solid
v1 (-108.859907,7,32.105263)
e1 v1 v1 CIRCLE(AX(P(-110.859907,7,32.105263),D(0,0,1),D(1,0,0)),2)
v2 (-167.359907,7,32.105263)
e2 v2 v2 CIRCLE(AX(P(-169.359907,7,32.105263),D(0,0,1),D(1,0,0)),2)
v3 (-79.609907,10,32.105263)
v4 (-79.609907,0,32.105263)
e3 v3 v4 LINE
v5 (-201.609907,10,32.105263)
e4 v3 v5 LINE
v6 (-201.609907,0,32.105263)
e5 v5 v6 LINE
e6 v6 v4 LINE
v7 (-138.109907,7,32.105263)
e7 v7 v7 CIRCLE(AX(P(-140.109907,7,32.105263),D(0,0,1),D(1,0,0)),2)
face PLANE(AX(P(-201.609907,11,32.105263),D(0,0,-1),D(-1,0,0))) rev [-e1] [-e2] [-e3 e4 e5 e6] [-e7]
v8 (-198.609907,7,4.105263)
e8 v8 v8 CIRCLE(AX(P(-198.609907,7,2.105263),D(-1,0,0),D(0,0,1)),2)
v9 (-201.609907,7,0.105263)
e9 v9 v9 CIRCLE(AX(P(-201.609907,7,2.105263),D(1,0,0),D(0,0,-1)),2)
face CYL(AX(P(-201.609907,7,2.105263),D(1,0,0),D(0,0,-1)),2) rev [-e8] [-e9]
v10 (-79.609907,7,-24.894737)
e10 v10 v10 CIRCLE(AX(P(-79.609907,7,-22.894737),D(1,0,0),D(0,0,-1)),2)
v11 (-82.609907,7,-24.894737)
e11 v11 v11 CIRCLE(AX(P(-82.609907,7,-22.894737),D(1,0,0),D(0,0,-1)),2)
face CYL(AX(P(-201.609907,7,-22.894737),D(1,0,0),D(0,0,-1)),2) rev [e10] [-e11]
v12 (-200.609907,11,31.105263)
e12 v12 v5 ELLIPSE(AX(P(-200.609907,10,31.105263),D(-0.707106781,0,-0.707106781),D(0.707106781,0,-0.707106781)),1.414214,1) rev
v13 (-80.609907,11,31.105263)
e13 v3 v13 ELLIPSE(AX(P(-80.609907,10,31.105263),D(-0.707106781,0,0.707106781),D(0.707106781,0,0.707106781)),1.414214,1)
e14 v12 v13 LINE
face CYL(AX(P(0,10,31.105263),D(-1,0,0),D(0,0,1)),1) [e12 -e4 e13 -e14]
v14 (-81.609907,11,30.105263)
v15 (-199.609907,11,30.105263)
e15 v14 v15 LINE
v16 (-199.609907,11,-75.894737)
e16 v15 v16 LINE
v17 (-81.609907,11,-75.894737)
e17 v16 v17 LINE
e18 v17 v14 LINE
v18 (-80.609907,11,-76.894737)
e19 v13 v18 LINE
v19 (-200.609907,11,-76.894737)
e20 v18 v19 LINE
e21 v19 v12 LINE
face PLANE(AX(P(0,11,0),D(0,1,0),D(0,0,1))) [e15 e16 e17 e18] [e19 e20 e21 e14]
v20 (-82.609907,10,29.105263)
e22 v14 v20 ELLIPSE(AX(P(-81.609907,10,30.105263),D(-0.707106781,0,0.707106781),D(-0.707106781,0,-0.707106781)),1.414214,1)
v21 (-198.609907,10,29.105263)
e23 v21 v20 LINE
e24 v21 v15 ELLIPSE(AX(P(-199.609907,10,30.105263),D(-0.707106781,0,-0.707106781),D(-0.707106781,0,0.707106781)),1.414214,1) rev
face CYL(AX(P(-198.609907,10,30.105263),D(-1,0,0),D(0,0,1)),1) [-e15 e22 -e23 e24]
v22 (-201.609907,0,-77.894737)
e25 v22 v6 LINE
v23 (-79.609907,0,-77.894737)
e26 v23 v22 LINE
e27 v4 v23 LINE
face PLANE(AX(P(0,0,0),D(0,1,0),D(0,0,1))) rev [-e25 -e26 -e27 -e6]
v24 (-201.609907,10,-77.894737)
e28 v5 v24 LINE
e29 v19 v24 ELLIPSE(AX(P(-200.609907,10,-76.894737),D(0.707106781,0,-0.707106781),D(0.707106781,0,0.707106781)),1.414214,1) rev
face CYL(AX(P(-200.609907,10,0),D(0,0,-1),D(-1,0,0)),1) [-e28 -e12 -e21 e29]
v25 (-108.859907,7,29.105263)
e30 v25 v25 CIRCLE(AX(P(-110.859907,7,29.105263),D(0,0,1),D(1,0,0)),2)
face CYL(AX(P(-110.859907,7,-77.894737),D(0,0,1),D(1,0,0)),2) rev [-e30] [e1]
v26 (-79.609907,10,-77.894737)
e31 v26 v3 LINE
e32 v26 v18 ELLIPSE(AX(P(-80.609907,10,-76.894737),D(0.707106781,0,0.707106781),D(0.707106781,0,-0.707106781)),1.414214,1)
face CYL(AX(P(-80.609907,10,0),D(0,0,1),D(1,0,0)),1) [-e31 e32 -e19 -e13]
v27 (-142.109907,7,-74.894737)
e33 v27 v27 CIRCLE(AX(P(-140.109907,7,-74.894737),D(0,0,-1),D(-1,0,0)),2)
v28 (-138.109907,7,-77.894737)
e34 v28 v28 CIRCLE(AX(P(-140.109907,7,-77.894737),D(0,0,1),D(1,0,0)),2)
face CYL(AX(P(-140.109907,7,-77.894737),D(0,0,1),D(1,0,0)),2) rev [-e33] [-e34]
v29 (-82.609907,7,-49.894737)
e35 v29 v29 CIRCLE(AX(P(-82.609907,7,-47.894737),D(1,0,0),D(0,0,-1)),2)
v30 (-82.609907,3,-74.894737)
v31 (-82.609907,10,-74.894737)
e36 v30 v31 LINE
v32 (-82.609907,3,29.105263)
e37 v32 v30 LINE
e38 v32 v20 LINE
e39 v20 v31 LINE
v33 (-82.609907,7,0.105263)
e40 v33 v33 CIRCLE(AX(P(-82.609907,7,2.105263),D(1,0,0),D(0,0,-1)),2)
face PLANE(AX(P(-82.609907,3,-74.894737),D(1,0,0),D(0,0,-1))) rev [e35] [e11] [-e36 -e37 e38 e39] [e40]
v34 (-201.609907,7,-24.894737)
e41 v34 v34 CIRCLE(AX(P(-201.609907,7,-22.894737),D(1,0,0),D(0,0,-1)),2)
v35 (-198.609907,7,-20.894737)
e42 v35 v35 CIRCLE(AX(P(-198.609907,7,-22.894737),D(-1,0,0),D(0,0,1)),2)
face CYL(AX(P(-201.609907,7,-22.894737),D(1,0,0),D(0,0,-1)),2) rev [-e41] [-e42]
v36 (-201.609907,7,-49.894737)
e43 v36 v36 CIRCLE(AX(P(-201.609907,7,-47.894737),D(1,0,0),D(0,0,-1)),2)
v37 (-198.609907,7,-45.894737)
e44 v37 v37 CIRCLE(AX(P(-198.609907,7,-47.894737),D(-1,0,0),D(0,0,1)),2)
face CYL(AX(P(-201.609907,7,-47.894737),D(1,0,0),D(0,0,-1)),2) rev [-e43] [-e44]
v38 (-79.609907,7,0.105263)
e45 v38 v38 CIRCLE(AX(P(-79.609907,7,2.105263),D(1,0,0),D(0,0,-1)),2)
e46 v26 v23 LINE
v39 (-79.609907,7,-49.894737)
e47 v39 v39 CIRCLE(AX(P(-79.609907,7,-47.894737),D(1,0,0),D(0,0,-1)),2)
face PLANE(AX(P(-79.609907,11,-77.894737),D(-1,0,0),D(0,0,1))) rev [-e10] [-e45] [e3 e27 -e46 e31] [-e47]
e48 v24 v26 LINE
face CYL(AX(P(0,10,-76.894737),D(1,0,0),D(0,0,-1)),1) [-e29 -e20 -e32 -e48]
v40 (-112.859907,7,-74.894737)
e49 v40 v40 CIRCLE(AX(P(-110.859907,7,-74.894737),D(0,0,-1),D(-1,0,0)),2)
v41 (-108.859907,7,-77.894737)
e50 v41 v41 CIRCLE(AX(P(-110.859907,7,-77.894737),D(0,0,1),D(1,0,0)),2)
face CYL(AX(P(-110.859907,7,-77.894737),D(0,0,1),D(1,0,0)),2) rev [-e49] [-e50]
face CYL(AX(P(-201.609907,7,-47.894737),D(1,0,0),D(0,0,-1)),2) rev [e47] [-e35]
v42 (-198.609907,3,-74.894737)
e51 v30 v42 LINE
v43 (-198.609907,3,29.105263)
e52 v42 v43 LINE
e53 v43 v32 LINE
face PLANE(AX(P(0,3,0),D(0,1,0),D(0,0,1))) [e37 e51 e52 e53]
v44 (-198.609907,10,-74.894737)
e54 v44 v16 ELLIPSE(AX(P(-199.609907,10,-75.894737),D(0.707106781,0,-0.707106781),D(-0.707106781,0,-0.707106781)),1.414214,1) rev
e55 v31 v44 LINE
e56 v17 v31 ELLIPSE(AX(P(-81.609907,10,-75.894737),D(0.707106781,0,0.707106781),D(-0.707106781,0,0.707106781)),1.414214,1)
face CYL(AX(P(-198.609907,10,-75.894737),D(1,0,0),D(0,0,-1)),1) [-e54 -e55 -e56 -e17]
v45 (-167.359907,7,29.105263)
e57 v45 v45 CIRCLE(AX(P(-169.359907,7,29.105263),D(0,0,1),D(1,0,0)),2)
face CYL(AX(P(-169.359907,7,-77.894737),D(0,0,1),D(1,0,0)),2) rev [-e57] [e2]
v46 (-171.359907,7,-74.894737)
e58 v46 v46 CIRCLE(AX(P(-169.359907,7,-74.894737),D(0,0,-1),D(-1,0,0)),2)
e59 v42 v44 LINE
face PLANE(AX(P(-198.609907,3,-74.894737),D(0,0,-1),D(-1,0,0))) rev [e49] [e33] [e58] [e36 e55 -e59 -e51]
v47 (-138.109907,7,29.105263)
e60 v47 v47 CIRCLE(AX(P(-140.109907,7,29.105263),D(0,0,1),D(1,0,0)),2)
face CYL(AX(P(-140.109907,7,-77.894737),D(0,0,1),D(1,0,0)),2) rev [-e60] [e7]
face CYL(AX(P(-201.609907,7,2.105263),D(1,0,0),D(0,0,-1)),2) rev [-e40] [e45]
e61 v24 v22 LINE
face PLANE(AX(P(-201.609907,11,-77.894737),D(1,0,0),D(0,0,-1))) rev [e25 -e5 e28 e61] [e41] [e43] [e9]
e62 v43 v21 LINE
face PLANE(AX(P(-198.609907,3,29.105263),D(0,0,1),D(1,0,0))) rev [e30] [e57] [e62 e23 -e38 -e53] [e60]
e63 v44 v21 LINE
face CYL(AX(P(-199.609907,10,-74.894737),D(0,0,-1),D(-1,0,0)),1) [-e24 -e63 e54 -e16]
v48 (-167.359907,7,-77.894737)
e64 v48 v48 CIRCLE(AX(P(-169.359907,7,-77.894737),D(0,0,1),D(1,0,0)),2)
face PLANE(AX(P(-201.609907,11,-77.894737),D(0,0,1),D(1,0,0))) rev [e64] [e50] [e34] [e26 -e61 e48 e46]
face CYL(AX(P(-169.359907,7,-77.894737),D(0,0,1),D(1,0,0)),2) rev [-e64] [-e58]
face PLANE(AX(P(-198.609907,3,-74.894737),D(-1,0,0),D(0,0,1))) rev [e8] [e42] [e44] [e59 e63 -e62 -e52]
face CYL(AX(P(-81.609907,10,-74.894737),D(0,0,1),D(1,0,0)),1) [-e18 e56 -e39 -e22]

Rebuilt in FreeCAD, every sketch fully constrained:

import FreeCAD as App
import Part
import Sketcher
from FreeCAD import Vector
Q = App.Units.Quantity


def edges_at(feature, points):
    """Names of the edges that pass closest to the given points."""
    edges = feature.Shape.Edges
    near = lambda p: min(range(len(edges)), key=lambda i: edges[i].distToShape(Part.Vertex(*p))[0])
    return sorted({f"Edge{near(p) + 1}" for p in points})

doc = App.newDocument("Part")
params = doc.addObject("Spreadsheet::Sheet", "Params")
for row, (alias, value) in enumerate([
    ("sketch1_width", "122 mm"),
    ("sketch1_height", "110 mm"),
    ("pad1_length", "11 mm"),
    ("sketch2_width", "116 mm"),
    ("sketch2_height", "104 mm"),
    ("pocket1_length", "8 mm"),
    ("sketch3_diameter", "4 mm"),
    ("sketch4_diameter", "4 mm"),
    ("fillet_radius", "1 mm"),
], start=1):
    params.set(f"A{row}", alias)
    params.set(f"B{row}", "=" + value)
    params.setAlias(f"B{row}", alias)

body = doc.addObject("PartDesign::Body", "Body")

sketch1 = doc.addObject("Sketcher::SketchObject", "Sketch")
body.addObject(sketch1)
sketch1.AttachmentSupport = (doc.XZ_Plane, [""])
sketch1.MapMode = "FlatFace"
sketch1.addGeometry(Part.LineSegment(Vector(-202, -78, 0), Vector(-202, 32, 0)), False)
sketch1.addGeometry(Part.LineSegment(Vector(-202, 32, 0), Vector(-80, 32, 0)), False)
sketch1.addGeometry(Part.LineSegment(Vector(-80, 32, 0), Vector(-80, -78, 0)), False)
sketch1.addGeometry(Part.LineSegment(Vector(-80, -78, 0), Vector(-202, -78, 0)), False)
sketch1.addConstraint(Sketcher.Constraint("Coincident", 0, 2, 1, 1))
sketch1.addConstraint(Sketcher.Constraint("Coincident", 1, 2, 2, 1))
sketch1.addConstraint(Sketcher.Constraint("Coincident", 2, 2, 3, 1))
sketch1.addConstraint(Sketcher.Constraint("Coincident", 3, 2, 0, 1))
sketch1.addConstraint(Sketcher.Constraint("Vertical", 0))
sketch1.addConstraint(Sketcher.Constraint("Horizontal", 1))
sketch1.addConstraint(Sketcher.Constraint("Vertical", 2))
sketch1.addConstraint(Sketcher.Constraint("Horizontal", 3))
sketch1.addConstraint(Sketcher.Constraint("DistanceX", 1, 1, 1, 2, Q("122 mm")))
sketch1.addConstraint(Sketcher.Constraint("DistanceY", 0, 1, 0, 2, Q("110 mm")))
sketch1.addConstraint(Sketcher.Constraint("DistanceX", 0, 2, -1, 1, Q("201.609907 mm")))
sketch1.addConstraint(Sketcher.Constraint("DistanceY", -1, 1, 0, 2, Q("32.105263 mm")))
sketch1.setExpression("Constraints[8]", "Params.sketch1_width")
sketch1.setExpression("Constraints[9]", "Params.sketch1_height")
pad1 = doc.addObject("PartDesign::Pad", "Pad")
body.addObject(pad1)
pad1.Profile = sketch1
pad1.setExpression("Length", "Params.pad1_length")
pad1.Reversed = True

sketch2 = doc.addObject("Sketcher::SketchObject", "Sketch001")
body.addObject(sketch2)
sketch2.AttachmentSupport = (doc.XZ_Plane, [""])
sketch2.MapMode = "FlatFace"
sketch2.AttachmentOffset = App.Placement(Vector(0, 0, -11), App.Rotation())
sketch2.addGeometry(Part.LineSegment(Vector(-199, -75, 0), Vector(-199, 29, 0)), False)
sketch2.addGeometry(Part.LineSegment(Vector(-199, 29, 0), Vector(-83, 29, 0)), False)
sketch2.addGeometry(Part.LineSegment(Vector(-83, 29, 0), Vector(-83, -75, 0)), False)
sketch2.addGeometry(Part.LineSegment(Vector(-83, -75, 0), Vector(-199, -75, 0)), False)
sketch2.addConstraint(Sketcher.Constraint("Coincident", 0, 2, 1, 1))
sketch2.addConstraint(Sketcher.Constraint("Coincident", 1, 2, 2, 1))
sketch2.addConstraint(Sketcher.Constraint("Coincident", 2, 2, 3, 1))
sketch2.addConstraint(Sketcher.Constraint("Coincident", 3, 2, 0, 1))
sketch2.addConstraint(Sketcher.Constraint("Vertical", 0))
sketch2.addConstraint(Sketcher.Constraint("Horizontal", 1))
sketch2.addConstraint(Sketcher.Constraint("Vertical", 2))
sketch2.addConstraint(Sketcher.Constraint("Horizontal", 3))
sketch2.addConstraint(Sketcher.Constraint("DistanceX", 1, 1, 1, 2, Q("116 mm")))
sketch2.addConstraint(Sketcher.Constraint("DistanceY", 0, 1, 0, 2, Q("104 mm")))
sketch2.addConstraint(Sketcher.Constraint("DistanceX", 0, 2, -1, 1, Q("198.609907 mm")))
sketch2.addConstraint(Sketcher.Constraint("DistanceY", -1, 1, 0, 2, Q("29.105263 mm")))
sketch2.setExpression("Constraints[8]", "Params.sketch2_width")
sketch2.setExpression("Constraints[9]", "Params.sketch2_height")
pocket1 = doc.addObject("PartDesign::Pocket", "Pocket")
body.addObject(pocket1)
pocket1.Profile = sketch2
pocket1.setExpression("Length", "Params.pocket1_length")
pocket1.Reversed = True

sketch3 = doc.addObject("Sketcher::SketchObject", "Sketch002")
body.addObject(sketch3)
sketch3.AttachmentSupport = (doc.YZ_Plane, [""])
sketch3.MapMode = "FlatFace"
sketch3.AttachmentOffset = App.Placement(Vector(0, 0, -198.609907), App.Rotation())
sketch3.addGeometry(Part.Circle(Vector(7, 2.1, 0), Vector(0, 0, 1), 2), False)
sketch3.addGeometry(Part.Circle(Vector(7, -22.9, 0), Vector(0, 0, 1), 2), False)
sketch3.addGeometry(Part.Circle(Vector(7, -47.9, 0), Vector(0, 0, 1), 2), False)
sketch3.addConstraint(Sketcher.Constraint("Equal", 0, 1))
sketch3.addConstraint(Sketcher.Constraint("Equal", 1, 2))
sketch3.addConstraint(Sketcher.Constraint("Vertical", 0, 3, 1, 3))
sketch3.addConstraint(Sketcher.Constraint("Vertical", 1, 3, 2, 3))
sketch3.addConstraint(Sketcher.Constraint("Diameter", 0, Q("4 mm")))
sketch3.addConstraint(Sketcher.Constraint("DistanceX", -1, 1, 0, 3, Q("7 mm")))
sketch3.addConstraint(Sketcher.Constraint("DistanceY", 1, 3, 0, 3, Q("25 mm")))
sketch3.addConstraint(Sketcher.Constraint("DistanceY", 2, 3, 1, 3, Q("25 mm")))
sketch3.addConstraint(Sketcher.Constraint("DistanceY", -1, 1, 0, 3, Q("2.105263 mm")))
sketch3.setExpression("Constraints[4]", "Params.sketch3_diameter")
pocket2 = doc.addObject("PartDesign::Pocket", "Pocket001")
body.addObject(pocket2)
pocket2.Profile = sketch3
pocket2.Type = "ThroughAll"
pocket2.Midplane = True

sketch4 = doc.addObject("Sketcher::SketchObject", "Sketch003")
body.addObject(sketch4)
sketch4.AttachmentSupport = (doc.XY_Plane, [""])
sketch4.MapMode = "FlatFace"
sketch4.AttachmentOffset = App.Placement(Vector(0, 0, -74.894737), App.Rotation())
sketch4.addGeometry(Part.Circle(Vector(-169.4, 7, 0), Vector(0, 0, 1), 2), False)
sketch4.addGeometry(Part.Circle(Vector(-140.1, 7, 0), Vector(0, 0, 1), 2), False)
sketch4.addGeometry(Part.Circle(Vector(-110.9, 7, 0), Vector(0, 0, 1), 2), False)
sketch4.addConstraint(Sketcher.Constraint("Equal", 0, 1))
sketch4.addConstraint(Sketcher.Constraint("Equal", 1, 2))
sketch4.addConstraint(Sketcher.Constraint("Horizontal", 0, 3, 1, 3))
sketch4.addConstraint(Sketcher.Constraint("Horizontal", 1, 3, 2, 3))
sketch4.addConstraint(Sketcher.Constraint("Diameter", 0, Q("4 mm")))
sketch4.addConstraint(Sketcher.Constraint("DistanceY", -1, 1, 0, 3, Q("7 mm")))
sketch4.addConstraint(Sketcher.Constraint("DistanceX", 0, 3, 2, 3, Q("58.5 mm")))
sketch4.addConstraint(Sketcher.Constraint("DistanceX", 0, 3, 1, 3, Q("29.25 mm")))
sketch4.addConstraint(Sketcher.Constraint("DistanceX", 0, 3, -1, 1, Q("169.359907 mm")))
sketch4.setExpression("Constraints[4]", "Params.sketch4_diameter")
pocket3 = doc.addObject("PartDesign::Pocket", "Pocket002")
body.addObject(pocket3)
pocket3.Profile = sketch4
pocket3.Type = "ThroughAll"
pocket3.Midplane = True
doc.recompute()

fillet = doc.addObject("PartDesign::Fillet", "Fillet")
body.addObject(fillet)
fillet.Base = (pocket3, edges_at(pocket3, [
    (-79.61, 11, -22.895),
    (-140.61, 11, -77.895),
    (-198.61, 11, -22.895),
    (-140.61, 11, 29.105),
    (-82.61, 11, -22.895),
    (-140.61, 11, -74.895),
    (-201.61, 11, -22.895),
    (-140.61, 11, 32.105),
]))
fillet.setExpression("Radius", "Params.fillet_radius")

doc.recompute()
